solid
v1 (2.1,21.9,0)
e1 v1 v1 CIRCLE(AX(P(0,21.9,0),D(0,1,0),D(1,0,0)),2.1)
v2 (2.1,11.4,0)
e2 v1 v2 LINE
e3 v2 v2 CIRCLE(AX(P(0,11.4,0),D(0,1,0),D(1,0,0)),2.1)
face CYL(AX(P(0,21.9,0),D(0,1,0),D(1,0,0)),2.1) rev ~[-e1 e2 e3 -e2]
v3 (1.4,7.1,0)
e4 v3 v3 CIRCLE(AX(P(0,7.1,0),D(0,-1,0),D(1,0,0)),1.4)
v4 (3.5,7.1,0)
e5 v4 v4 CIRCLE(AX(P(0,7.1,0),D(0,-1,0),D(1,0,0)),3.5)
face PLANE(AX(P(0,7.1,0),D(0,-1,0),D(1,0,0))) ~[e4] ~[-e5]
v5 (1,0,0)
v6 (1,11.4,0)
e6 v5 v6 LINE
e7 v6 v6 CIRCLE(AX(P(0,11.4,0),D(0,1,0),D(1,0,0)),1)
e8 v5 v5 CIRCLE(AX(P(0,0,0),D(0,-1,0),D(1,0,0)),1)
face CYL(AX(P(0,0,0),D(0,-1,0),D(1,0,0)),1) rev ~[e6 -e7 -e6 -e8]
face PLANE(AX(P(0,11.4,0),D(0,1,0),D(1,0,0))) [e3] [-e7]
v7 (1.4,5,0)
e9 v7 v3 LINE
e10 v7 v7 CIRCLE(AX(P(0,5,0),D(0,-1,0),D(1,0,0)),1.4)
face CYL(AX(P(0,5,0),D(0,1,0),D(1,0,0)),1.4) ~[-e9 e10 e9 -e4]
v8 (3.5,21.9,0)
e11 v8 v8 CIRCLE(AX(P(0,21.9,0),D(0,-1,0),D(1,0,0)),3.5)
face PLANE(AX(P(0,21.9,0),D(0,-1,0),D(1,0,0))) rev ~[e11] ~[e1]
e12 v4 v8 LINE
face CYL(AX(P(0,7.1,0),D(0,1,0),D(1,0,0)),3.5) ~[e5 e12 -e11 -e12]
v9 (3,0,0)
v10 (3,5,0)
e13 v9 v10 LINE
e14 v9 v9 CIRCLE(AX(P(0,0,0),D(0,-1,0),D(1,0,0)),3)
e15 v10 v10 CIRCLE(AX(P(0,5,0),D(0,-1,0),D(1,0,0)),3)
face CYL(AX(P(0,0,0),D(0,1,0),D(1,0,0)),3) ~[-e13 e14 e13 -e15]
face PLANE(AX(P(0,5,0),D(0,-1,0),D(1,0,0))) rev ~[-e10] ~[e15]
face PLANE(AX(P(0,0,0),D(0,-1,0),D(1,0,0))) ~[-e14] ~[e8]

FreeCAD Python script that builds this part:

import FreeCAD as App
import Part
import Sketcher


def add_polygon(sketch, points):
    """Adds a closed chain of lines whose ends are joined by coincident constraints."""
    first, n = sketch.GeometryCount, len(points)
    for a, b in zip(points, points[1:] + points[:1]):
        sketch.addGeometry(Part.LineSegment(App.Vector(*a, 0), App.Vector(*b, 0)), False)
    for i in range(n):
        sketch.addConstraint(Sketcher.Constraint("Coincident", first + i, 2, first + (i + 1) % n, 1))

doc = App.newDocument("Part")
body = doc.addObject("PartDesign::Body", "Body")

# Sketch on XY plane
sketch1 = doc.addObject("Sketcher::SketchObject", "Sketch")
body.addObject(sketch1)
sketch1.AttachmentSupport = (doc.XY_Plane, [""])
sketch1.MapMode = "FlatFace"
add_polygon(sketch1, [(0, 21.9), (0, 0), (3, 0), (3, 5), (1.4, 5), (1.4, 7.1), (3.5, 7.1), (3.5, 21.9)])  # lines 0-7
sketch1.addConstraint([
    Sketcher.Constraint("Vertical", 0),
    Sketcher.Constraint("Horizontal", 1),
    Sketcher.Constraint("Vertical", 2),
    Sketcher.Constraint("Horizontal", 3),
    Sketcher.Constraint("Vertical", 4),
    Sketcher.Constraint("Horizontal", 5),
    Sketcher.Constraint("Vertical", 6),
    Sketcher.Constraint("Horizontal", 7),
    Sketcher.Constraint("Coincident", 0, 2, -1, 1),
    Sketcher.Constraint("Equal", 5, 4),
    Sketcher.Constraint("DistanceX", 1, 1, 1, 2, 3.0),
    Sketcher.Constraint("DistanceY", 2, 1, 2, 2, 5.0),
    Sketcher.Constraint("DistanceX", 5, 1, 5, 2, 2.1),
    Sketcher.Constraint("DistanceX", 7, 2, 7, 1, 3.5),
    Sketcher.Constraint("DistanceY", 6, 1, 6, 2, 14.8),
])
revolution = doc.addObject("PartDesign::Revolution", "Revolution")
body.addObject(revolution)
revolution.Profile = sketch1
revolution.ReferenceAxis = (sketch1, ["V_Axis"])
revolution.Angle = 360

# Sketch on XZ plane
sketch2 = doc.addObject("Sketcher::SketchObject", "Sketch001")
body.addObject(sketch2)
sketch2.AttachmentSupport = (doc.XZ_Plane, [""])
sketch2.MapMode = "FlatFace"
sketch2.addGeometry(Part.Circle(App.Vector(0, 0, 0), App.Vector(0, 0, 1), 1), False)
sketch2.addConstraint([
    Sketcher.Constraint("Coincident", 0, 3, -1, 1),
    Sketcher.Constraint("Diameter", 0, 2.0),
])
pocket1 = doc.addObject("PartDesign::Pocket", "Pocket")
body.addObject(pocket1)
pocket1.Profile = sketch2
pocket1.Length = 21.9

# Sketch on XZ plane
sketch3 = doc.addObject("Sketcher::SketchObject", "Sketch002")
body.addObject(sketch3)
sketch3.AttachmentSupport = (doc.XZ_Plane, [""])
sketch3.MapMode = "FlatFace"
sketch3.AttachmentOffset = App.Placement(App.Vector(0, 0, -21.9), App.Rotation())
sketch3.addGeometry([
    Part.Circle(App.Vector(0, 0, 0), App.Vector(0, 0, 1), 2.1),
    Part.Circle(App.Vector(0, 0, 0), App.Vector(0, 0, 1), 1),
], False)
sketch3.addConstraint([
    Sketcher.Constraint("Coincident", 0, 3, -1, 1),
    Sketcher.Constraint("Coincident", 1, 3, -1, 1),
    Sketcher.Constraint("Diameter", 0, 4.2),
    Sketcher.Constraint("Diameter", 1, 2.0),
])
pocket2 = doc.addObject("PartDesign::Pocket", "Pocket001")
body.addObject(pocket2)
pocket2.Profile = sketch3
pocket2.Length = 10.5
pocket2.Reversed = True

doc.recompute()
